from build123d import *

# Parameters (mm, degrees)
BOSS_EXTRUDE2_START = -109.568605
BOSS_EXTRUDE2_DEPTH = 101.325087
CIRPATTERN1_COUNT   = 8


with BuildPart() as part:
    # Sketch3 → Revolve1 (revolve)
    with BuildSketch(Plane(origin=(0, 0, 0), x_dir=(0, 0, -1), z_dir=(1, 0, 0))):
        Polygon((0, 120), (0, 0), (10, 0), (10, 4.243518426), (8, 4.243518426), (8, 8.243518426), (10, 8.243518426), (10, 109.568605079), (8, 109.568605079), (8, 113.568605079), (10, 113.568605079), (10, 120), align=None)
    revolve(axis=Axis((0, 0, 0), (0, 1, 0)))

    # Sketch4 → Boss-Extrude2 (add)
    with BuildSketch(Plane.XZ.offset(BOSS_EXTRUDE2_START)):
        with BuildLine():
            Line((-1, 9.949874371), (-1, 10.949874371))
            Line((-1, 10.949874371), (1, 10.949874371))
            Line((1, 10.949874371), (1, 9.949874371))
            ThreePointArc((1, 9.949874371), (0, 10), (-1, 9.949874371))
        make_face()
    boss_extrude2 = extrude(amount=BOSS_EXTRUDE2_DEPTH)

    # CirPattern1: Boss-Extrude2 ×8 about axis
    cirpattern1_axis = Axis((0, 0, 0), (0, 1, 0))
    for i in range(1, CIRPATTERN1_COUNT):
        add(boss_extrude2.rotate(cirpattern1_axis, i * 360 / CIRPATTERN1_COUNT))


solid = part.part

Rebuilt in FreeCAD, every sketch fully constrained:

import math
import FreeCAD as App
import Part
import Sketcher
from FreeCAD import Vector


def add_polygon(sketch, points):
    """Adds a closed chain of lines whose ends are joined by coincident constraints."""
    first, n = sketch.GeometryCount, len(points)
    for a, b in zip(points, points[1:] + points[:1]):
        sketch.addGeometry(Part.LineSegment(App.Vector(*a, 0), App.Vector(*b, 0)), False)
    for i in range(n):
        sketch.addConstraint(Sketcher.Constraint("Coincident", first + i, 2, first + (i + 1) % n, 1))

doc = App.newDocument("Part")
params = doc.addObject("Spreadsheet::Sheet", "Params")
for row, (alias, value) in enumerate([
    ("sketch1_width", "120 mm"),
    ("sketch1_width2", "4 mm"),
    ("sketch1_height", "10 mm"),
    ("sketch1_height2", "2 mm"),
    ("revolution_angle", "360 deg"),
    ("sketch2_radius", "10 mm"),
    ("sketch2_width", "2 mm"),
    ("sketch2_height", "1 mm"),
    ("pad1_length", "101.325087 mm"),
], start=1):
    params.set(f"A{row}", alias)
    params.set(f"B{row}", "=" + value)
    params.setAlias(f"B{row}", alias)

body = doc.addObject("PartDesign::Body", "Body")

# Sketch on YZ plane
sketch1 = body.newObject("Sketcher::SketchObject", "Sketch")
sketch1.AttachmentSupport = (doc.getObject("YZ_Plane"), [""])
sketch1.MapMode = "FlatFace"
add_polygon(sketch1, [(120, 0), (0, 0), (0, -10), (4.243518, -10), (4.243518, -8), (8.243518, -8), (8.243518, -10), (109.568605, -10), (109.568605, -8), (113.568605, -8), (113.568605, -10), (120, -10)])  # lines 0-11
sketch1.addConstraint(Sketcher.Constraint("Horizontal", 0))
sketch1.addConstraint(Sketcher.Constraint("Vertical", 1))
sketch1.addConstraint(Sketcher.Constraint("Horizontal", 2))
sketch1.addConstraint(Sketcher.Constraint("Vertical", 3))
sketch1.addConstraint(Sketcher.Constraint("Horizontal", 4))
sketch1.addConstraint(Sketcher.Constraint("Vertical", 5))
sketch1.addConstraint(Sketcher.Constraint("Horizontal", 6))
sketch1.addConstraint(Sketcher.Constraint("Vertical", 7))
sketch1.addConstraint(Sketcher.Constraint("Horizontal", 8))
sketch1.addConstraint(Sketcher.Constraint("Vertical", 9))
sketch1.addConstraint(Sketcher.Constraint("Horizontal", 10))
sketch1.addConstraint(Sketcher.Constraint("Vertical", 11))
sketch1.addConstraint(Sketcher.Constraint("Coincident", 0, 2, -1, 1))
sketch1.addConstraint(Sketcher.Constraint("Horizontal", 2, 2, 5, 2))
sketch1.addConstraint(Sketcher.Constraint("Horizontal", 4, 2, 7, 2))
sketch1.addConstraint(Sketcher.Constraint("Horizontal", 6, 2, 9, 2))
sketch1.addConstraint(Sketcher.Constraint("Equal", 4, 8))
sketch1.addConstraint(Sketcher.Constraint("DistanceX", 0, 2, 0, 1, 120.0))
sketch1.addConstraint(Sketcher.Constraint("DistanceX", 4, 1, 4, 2, 4.0))
sketch1.addConstraint(Sketcher.Constraint("DistanceY", 1, 2, 1, 1, 10.0))
sketch1.addConstraint(Sketcher.Constraint("DistanceY", 3, 1, 3, 2, 2.0))
sketch1.addConstraint(Sketcher.Constraint("DistanceX", 2, 1, 2, 2, 4.243518))
sketch1.addConstraint(Sketcher.Constraint("DistanceX", 6, 1, 6, 2, 101.325087))
sketch1.setExpression("Constraints[29]", "Params.sketch1_width")
sketch1.setExpression("Constraints[30]", "Params.sketch1_width2")
sketch1.setExpression("Constraints[31]", "Params.sketch1_height")
sketch1.setExpression("Constraints[32]", "Params.sketch1_height2")
revolution = body.newObject("PartDesign::Revolution", "Revolution")
revolution.Profile = sketch1
revolution.ReferenceAxis = (sketch1, ["H_Axis"])
revolution.setExpression("Angle", "Params.revolution_angle")

# Sketch on XZ plane
sketch2 = body.newObject("Sketcher::SketchObject", "Sketch001")
sketch2.AttachmentSupport = (doc.getObject("XZ_Plane"), [""])
sketch2.MapMode = "FlatFace"
sketch2.AttachmentOffset = App.Placement(Vector(0, 0, -109.568605), App.Rotation())
sketch2.addGeometry(Part.LineSegment(Vector(-1, 10.949874, 0), Vector(-1, 9.949874, 0)), False)
sketch2.addGeometry(Part.ArcOfCircle(Part.Circle(Vector(0, 0, 0), Vector(0, 0, 1), 10), math.radians(84.26083), math.radians(95.73917)), False)
sketch2.addGeometry(Part.LineSegment(Vector(1, 9.949874, 0), Vector(1, 10.949874, 0)), False)
sketch2.addGeometry(Part.LineSegment(Vector(1, 10.949874, 0), Vector(-1, 10.949874, 0)), False)
sketch2.addConstraint(Sketcher.Constraint("Coincident", 0, 2, 1, 2))
sketch2.addConstraint(Sketcher.Constraint("Coincident", 1, 1, 2, 1))
sketch2.addConstraint(Sketcher.Constraint("Coincident", 2, 2, 3, 1))
sketch2.addConstraint(Sketcher.Constraint("Coincident", 3, 2, 0, 1))
sketch2.addConstraint(Sketcher.Constraint("Vertical", 0))
sketch2.addConstraint(Sketcher.Constraint("Vertical", 2))
sketch2.addConstraint(Sketcher.Constraint("Horizontal", 3))
sketch2.addConstraint(Sketcher.Constraint("Coincident", 1, 3, -1, 1))
sketch2.addConstraint(Sketcher.Constraint("Horizontal", 0, 2, 1, 1))
sketch2.addConstraint(Sketcher.Constraint("Radius", 1, 10.0))
sketch2.addConstraint(Sketcher.Constraint("DistanceX", 3, 2, 3, 1, 2.0))
sketch2.addConstraint(Sketcher.Constraint("DistanceY", 0, 2, 0, 1, 1.0))
sketch2.setExpression("Constraints[9]", "Params.sketch2_radius")
sketch2.setExpression("Constraints[10]", "Params.sketch2_width")
sketch2.setExpression("Constraints[11]", "Params.sketch2_height")
pad1 = body.newObject("PartDesign::Pad", "Pad")
pad1.Profile = sketch2
pad1.setExpression("Length", "Params.pad1_length")
doc.recompute()

polarpattern = body.newObject("PartDesign::PolarPattern", "PolarPattern")
polarpattern.Originals = [pad1]
polarpattern.Axis = (doc.getObject("Y_Axis"), [""])
polarpattern.Angle = 360
polarpattern.Occurrences = 8
body.Tip = polarpattern

doc.recompute()
